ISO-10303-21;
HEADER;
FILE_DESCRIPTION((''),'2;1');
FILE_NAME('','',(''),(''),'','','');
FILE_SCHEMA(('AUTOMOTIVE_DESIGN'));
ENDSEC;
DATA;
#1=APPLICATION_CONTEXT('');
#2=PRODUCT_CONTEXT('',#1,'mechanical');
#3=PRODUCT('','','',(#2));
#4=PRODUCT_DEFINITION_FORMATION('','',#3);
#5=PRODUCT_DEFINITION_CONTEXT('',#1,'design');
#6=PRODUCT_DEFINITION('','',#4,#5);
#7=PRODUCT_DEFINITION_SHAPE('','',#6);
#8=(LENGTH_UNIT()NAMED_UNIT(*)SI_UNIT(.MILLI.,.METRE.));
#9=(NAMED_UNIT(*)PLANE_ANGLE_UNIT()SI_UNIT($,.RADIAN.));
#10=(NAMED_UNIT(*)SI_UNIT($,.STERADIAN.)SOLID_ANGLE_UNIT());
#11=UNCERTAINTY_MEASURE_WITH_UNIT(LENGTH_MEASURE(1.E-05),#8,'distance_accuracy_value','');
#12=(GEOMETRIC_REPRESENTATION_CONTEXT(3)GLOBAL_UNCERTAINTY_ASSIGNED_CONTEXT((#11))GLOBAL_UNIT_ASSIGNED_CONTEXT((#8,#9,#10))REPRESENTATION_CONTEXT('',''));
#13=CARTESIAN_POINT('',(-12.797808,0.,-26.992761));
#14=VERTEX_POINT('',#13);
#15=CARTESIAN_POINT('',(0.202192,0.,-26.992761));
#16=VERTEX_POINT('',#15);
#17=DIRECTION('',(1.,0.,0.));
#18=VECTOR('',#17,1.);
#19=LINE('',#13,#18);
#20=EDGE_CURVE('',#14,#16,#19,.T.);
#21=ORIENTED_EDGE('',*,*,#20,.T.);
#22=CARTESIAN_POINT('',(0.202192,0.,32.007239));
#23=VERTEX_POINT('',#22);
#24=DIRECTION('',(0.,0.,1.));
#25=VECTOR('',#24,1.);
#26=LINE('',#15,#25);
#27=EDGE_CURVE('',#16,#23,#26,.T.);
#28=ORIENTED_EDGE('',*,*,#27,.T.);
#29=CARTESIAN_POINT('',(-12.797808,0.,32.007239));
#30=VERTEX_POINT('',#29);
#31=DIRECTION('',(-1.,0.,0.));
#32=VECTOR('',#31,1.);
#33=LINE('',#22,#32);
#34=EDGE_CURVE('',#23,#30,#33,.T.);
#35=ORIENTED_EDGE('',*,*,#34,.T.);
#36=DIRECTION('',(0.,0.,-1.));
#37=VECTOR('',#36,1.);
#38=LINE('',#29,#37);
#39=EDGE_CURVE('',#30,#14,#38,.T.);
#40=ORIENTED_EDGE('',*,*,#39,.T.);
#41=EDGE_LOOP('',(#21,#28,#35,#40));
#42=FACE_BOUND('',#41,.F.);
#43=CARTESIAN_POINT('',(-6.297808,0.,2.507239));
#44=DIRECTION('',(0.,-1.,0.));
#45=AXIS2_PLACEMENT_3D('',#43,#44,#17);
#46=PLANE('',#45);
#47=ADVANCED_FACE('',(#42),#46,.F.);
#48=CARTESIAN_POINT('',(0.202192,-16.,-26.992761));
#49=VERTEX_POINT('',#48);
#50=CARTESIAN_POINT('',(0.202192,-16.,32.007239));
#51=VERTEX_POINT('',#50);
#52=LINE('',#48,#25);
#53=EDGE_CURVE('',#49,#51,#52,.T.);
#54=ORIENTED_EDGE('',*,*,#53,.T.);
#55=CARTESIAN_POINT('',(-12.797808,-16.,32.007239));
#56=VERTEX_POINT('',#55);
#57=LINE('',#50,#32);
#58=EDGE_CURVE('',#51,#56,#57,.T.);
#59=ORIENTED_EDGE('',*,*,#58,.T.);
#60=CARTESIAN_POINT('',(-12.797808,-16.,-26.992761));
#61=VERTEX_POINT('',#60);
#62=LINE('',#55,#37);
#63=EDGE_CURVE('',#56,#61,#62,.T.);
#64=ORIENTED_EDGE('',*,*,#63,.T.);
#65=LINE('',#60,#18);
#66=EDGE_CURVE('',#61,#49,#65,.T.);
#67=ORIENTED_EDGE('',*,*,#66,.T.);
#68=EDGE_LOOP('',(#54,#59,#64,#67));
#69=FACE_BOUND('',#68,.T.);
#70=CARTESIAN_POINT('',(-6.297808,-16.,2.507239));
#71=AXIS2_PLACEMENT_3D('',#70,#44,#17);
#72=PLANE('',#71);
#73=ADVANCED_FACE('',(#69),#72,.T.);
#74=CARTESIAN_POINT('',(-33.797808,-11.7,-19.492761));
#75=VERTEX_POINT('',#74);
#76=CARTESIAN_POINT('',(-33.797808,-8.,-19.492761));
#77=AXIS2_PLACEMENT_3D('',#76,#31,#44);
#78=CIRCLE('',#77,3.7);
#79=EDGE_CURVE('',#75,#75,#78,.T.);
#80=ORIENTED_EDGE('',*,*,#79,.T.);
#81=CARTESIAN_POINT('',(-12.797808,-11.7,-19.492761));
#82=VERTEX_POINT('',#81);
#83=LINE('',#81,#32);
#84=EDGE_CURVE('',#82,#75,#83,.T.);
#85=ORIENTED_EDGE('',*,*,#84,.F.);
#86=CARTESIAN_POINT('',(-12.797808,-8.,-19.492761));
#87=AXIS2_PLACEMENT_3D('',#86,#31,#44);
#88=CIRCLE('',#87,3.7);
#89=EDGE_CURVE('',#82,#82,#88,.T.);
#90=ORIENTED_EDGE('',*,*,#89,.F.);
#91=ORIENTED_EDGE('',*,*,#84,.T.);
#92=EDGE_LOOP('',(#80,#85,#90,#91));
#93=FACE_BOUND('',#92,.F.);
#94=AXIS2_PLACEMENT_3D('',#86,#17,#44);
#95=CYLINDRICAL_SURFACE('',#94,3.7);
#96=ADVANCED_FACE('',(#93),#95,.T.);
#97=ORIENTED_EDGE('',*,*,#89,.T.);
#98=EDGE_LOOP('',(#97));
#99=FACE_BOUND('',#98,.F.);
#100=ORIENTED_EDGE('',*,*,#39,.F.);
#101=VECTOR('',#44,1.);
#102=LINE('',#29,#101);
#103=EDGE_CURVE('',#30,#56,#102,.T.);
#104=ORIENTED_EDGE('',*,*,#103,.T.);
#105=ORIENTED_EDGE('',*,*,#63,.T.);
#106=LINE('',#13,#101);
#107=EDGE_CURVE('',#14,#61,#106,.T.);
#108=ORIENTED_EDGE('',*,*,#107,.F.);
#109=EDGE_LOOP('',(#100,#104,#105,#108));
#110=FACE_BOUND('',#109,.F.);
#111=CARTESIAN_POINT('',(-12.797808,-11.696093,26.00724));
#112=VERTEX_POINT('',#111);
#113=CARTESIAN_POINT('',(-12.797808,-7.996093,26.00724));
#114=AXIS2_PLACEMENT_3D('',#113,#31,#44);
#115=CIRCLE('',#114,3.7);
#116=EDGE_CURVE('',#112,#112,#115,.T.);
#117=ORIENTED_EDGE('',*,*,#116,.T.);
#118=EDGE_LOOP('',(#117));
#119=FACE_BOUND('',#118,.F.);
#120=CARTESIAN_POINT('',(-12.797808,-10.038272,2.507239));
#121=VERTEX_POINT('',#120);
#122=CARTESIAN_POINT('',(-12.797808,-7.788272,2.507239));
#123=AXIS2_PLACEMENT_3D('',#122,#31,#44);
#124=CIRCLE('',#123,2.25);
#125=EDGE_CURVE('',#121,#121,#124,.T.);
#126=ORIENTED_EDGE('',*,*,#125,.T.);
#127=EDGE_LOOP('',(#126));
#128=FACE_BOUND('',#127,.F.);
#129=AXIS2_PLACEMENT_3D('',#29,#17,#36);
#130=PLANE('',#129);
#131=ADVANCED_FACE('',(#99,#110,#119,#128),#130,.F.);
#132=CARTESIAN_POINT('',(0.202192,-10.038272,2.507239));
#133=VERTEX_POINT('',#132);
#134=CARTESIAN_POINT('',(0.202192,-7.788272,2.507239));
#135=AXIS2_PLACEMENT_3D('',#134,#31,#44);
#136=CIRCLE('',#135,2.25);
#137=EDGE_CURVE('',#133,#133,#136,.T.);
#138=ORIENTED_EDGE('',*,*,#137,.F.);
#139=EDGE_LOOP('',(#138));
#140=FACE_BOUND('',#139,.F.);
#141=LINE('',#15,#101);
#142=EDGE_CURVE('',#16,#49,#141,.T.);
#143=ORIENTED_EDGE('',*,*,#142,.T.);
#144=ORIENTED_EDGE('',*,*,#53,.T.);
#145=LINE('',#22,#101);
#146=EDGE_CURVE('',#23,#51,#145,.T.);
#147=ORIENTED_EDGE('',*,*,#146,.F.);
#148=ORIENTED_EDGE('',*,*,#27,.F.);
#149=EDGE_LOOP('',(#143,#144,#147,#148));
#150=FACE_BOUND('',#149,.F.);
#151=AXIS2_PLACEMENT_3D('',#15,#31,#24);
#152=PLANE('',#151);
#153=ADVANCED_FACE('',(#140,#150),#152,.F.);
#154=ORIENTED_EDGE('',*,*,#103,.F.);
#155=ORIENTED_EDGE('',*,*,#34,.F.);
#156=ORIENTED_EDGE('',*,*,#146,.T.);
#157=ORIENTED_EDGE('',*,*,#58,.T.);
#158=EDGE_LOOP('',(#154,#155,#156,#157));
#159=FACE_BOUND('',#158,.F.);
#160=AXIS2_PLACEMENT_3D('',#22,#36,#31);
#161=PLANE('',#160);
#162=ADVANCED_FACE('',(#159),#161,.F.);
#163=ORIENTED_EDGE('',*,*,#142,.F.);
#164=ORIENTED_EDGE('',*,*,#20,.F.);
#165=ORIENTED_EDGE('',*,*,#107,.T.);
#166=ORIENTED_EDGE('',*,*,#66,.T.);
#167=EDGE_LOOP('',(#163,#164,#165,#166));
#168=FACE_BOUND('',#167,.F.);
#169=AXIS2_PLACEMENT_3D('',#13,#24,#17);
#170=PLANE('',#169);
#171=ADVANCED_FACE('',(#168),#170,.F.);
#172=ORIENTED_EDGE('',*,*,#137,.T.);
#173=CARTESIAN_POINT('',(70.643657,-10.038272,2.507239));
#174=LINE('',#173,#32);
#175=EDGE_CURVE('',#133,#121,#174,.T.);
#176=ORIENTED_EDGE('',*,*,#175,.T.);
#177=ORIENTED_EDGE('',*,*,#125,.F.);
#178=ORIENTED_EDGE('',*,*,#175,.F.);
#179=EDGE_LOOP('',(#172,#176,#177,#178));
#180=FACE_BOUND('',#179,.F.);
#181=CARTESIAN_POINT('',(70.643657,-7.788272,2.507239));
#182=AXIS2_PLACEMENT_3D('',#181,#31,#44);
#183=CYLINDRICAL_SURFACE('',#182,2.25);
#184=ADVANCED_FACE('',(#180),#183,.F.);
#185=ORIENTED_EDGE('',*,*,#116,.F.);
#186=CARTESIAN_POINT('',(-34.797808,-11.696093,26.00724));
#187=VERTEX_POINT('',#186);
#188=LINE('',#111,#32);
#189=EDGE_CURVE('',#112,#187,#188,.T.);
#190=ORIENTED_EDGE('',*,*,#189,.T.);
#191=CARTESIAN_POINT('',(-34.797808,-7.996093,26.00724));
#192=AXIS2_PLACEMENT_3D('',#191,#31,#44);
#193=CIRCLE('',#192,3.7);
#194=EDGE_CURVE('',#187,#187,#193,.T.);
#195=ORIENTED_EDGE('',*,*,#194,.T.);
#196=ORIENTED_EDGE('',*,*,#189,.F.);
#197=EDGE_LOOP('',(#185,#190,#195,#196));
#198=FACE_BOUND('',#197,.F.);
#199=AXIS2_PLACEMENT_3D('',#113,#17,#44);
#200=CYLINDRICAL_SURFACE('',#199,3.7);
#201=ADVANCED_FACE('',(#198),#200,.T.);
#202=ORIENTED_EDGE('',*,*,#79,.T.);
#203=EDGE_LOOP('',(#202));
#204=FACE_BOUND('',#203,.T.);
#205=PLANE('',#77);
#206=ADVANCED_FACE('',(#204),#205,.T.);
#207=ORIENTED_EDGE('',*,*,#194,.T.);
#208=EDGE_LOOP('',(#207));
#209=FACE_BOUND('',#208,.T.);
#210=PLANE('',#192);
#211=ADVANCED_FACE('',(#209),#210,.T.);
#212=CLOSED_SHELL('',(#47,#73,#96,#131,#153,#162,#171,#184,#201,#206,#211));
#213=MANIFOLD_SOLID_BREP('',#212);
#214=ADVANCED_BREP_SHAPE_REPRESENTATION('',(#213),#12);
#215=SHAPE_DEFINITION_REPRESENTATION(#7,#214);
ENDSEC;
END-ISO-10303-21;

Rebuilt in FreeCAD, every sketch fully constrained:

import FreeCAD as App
import Part
import Sketcher
from FreeCAD import Vector

doc = App.newDocument("Part")
params = doc.addObject("Spreadsheet::Sheet", "Params")
for row, (alias, value) in enumerate([
    ("sketch1_width", "13 mm"),
    ("sketch1_height", "59 mm"),
    ("pad1_length", "16 mm"),
    ("sketch2_diameter", "7.4 mm"),
    ("pad2_length", "22 mm"),
    ("sketch3_diameter", "7.4 mm"),
    ("pad3_length", "21 mm"),
    ("sketch4_diameter", "4.5 mm"),
    ("hole_diameter", "4.5 mm"),
], start=1):
    params.set(f"A{row}", alias)
    params.set(f"B{row}", "=" + value)
    params.setAlias(f"B{row}", alias)

body = doc.addObject("PartDesign::Body", "Body")

sketch1 = body.newObject("Sketcher::SketchObject", "Sketch")
sketch1.AttachmentSupport = (doc.getObject("XZ_Plane"), [""])
sketch1.MapMode = "FlatFace"
sketch1.addGeometry([
    Part.LineSegment(Vector(0, 32, 0), Vector(-13, 32, 0)),
    Part.LineSegment(Vector(-13, 32, 0), Vector(-13, -27, 0)),
    Part.LineSegment(Vector(-13, -27, 0), Vector(0, -27, 0)),
    Part.LineSegment(Vector(0, -27, 0), Vector(0, 32, 0)),
], False)
sketch1.addConstraint([
    Sketcher.Constraint("Coincident", 0, 2, 1, 1),
    Sketcher.Constraint("Coincident", 1, 2, 2, 1),
    Sketcher.Constraint("Coincident", 2, 2, 3, 1),
    Sketcher.Constraint("Coincident", 3, 2, 0, 1),
    Sketcher.Constraint("Horizontal", 0),
    Sketcher.Constraint("Vertical", 1),
    Sketcher.Constraint("Horizontal", 2),
    Sketcher.Constraint("Vertical", 3),
    Sketcher.Constraint("DistanceX", 0, 2, 0, 1, 13.0),
    Sketcher.Constraint("DistanceY", 1, 2, 1, 1, 59.0),
    Sketcher.Constraint("DistanceY", -1, 1, 0, 2, 32.007239),
    Sketcher.Constraint("DistanceX", 0, 2, -1, 1, 12.797808),
])
sketch1.setExpression("Constraints[8]", "Params.sketch1_width")
sketch1.setExpression("Constraints[9]", "Params.sketch1_height")
pad1 = body.newObject("PartDesign::Pad", "Pad")
pad1.Profile = sketch1
pad1.setExpression("Length", "Params.pad1_length")

sketch2 = body.newObject("Sketcher::SketchObject", "Sketch001")
sketch2.AttachmentSupport = (doc.getObject("YZ_Plane"), [""])
sketch2.MapMode = "FlatFace"
sketch2.AttachmentOffset = App.Placement(Vector(0, 0, -12.797808), App.Rotation())
sketch2.addGeometry(Part.Circle(Vector(-8, 26, 0), Vector(0, 0, 1), 3.7), False)
sketch2.addConstraint([
    Sketcher.Constraint("Diameter", 0, 7.4),
    Sketcher.Constraint("DistanceY", -1, 1, 0, 3, 26.00724),
    Sketcher.Constraint("DistanceX", 0, 3, -1, 1, 7.996093),
])
sketch2.setExpression("Constraints[0]", "Params.sketch2_diameter")
pad2 = body.newObject("PartDesign::Pad", "Pad001")
pad2.Profile = sketch2
pad2.setExpression("Length", "Params.pad2_length")
pad2.Reversed = True

sketch3 = body.newObject("Sketcher::SketchObject", "Sketch002")
sketch3.AttachmentSupport = (doc.getObject("YZ_Plane"), [""])
sketch3.MapMode = "FlatFace"
sketch3.AttachmentOffset = App.Placement(Vector(0, 0, -12.797808), App.Rotation())
sketch3.addGeometry(Part.Circle(Vector(-8, -19.5, 0), Vector(0, 0, 1), 3.7), False)
sketch3.addConstraint([
    Sketcher.Constraint("Diameter", 0, 7.4),
    Sketcher.Constraint("DistanceX", 0, 3, -1, 1, 8.0),
    Sketcher.Constraint("DistanceY", 0, 3, -1, 1, 19.492761),
])
sketch3.setExpression("Constraints[0]", "Params.sketch3_diameter")
pad3 = body.newObject("PartDesign::Pad", "Pad002")
pad3.Profile = sketch3
pad3.setExpression("Length", "Params.pad3_length")
pad3.Reversed = True

sketch4 = body.newObject("Sketcher::SketchObject", "Sketch003")
sketch4.AttachmentSupport = (doc.getObject("YZ_Plane"), [""])
sketch4.MapMode = "FlatFace"
sketch4.AttachmentOffset = App.Placement(Vector(0, 0, 0.202192), App.Rotation())
sketch4.addGeometry(Part.Circle(Vector(-7.8, 2.5, 0), Vector(0, 0, 1), 2.2), False)
sketch4.addConstraint([
    Sketcher.Constraint("Diameter", 0, 4.5),
    Sketcher.Constraint("DistanceY", -1, 1, 0, 3, 2.507239),
    Sketcher.Constraint("DistanceX", 0, 3, -1, 1, 7.788272),
])
sketch4.setExpression("Constraints[0]", "Params.sketch4_diameter")
doc.recompute()
hole = body.newObject("PartDesign::Hole", "Hole")
hole.Profile = sketch4
hole.ThreadType = "None"
hole.setExpression("Diameter", "Params.hole_diameter")
hole.DepthType = "ThroughAll"

doc.recompute()
